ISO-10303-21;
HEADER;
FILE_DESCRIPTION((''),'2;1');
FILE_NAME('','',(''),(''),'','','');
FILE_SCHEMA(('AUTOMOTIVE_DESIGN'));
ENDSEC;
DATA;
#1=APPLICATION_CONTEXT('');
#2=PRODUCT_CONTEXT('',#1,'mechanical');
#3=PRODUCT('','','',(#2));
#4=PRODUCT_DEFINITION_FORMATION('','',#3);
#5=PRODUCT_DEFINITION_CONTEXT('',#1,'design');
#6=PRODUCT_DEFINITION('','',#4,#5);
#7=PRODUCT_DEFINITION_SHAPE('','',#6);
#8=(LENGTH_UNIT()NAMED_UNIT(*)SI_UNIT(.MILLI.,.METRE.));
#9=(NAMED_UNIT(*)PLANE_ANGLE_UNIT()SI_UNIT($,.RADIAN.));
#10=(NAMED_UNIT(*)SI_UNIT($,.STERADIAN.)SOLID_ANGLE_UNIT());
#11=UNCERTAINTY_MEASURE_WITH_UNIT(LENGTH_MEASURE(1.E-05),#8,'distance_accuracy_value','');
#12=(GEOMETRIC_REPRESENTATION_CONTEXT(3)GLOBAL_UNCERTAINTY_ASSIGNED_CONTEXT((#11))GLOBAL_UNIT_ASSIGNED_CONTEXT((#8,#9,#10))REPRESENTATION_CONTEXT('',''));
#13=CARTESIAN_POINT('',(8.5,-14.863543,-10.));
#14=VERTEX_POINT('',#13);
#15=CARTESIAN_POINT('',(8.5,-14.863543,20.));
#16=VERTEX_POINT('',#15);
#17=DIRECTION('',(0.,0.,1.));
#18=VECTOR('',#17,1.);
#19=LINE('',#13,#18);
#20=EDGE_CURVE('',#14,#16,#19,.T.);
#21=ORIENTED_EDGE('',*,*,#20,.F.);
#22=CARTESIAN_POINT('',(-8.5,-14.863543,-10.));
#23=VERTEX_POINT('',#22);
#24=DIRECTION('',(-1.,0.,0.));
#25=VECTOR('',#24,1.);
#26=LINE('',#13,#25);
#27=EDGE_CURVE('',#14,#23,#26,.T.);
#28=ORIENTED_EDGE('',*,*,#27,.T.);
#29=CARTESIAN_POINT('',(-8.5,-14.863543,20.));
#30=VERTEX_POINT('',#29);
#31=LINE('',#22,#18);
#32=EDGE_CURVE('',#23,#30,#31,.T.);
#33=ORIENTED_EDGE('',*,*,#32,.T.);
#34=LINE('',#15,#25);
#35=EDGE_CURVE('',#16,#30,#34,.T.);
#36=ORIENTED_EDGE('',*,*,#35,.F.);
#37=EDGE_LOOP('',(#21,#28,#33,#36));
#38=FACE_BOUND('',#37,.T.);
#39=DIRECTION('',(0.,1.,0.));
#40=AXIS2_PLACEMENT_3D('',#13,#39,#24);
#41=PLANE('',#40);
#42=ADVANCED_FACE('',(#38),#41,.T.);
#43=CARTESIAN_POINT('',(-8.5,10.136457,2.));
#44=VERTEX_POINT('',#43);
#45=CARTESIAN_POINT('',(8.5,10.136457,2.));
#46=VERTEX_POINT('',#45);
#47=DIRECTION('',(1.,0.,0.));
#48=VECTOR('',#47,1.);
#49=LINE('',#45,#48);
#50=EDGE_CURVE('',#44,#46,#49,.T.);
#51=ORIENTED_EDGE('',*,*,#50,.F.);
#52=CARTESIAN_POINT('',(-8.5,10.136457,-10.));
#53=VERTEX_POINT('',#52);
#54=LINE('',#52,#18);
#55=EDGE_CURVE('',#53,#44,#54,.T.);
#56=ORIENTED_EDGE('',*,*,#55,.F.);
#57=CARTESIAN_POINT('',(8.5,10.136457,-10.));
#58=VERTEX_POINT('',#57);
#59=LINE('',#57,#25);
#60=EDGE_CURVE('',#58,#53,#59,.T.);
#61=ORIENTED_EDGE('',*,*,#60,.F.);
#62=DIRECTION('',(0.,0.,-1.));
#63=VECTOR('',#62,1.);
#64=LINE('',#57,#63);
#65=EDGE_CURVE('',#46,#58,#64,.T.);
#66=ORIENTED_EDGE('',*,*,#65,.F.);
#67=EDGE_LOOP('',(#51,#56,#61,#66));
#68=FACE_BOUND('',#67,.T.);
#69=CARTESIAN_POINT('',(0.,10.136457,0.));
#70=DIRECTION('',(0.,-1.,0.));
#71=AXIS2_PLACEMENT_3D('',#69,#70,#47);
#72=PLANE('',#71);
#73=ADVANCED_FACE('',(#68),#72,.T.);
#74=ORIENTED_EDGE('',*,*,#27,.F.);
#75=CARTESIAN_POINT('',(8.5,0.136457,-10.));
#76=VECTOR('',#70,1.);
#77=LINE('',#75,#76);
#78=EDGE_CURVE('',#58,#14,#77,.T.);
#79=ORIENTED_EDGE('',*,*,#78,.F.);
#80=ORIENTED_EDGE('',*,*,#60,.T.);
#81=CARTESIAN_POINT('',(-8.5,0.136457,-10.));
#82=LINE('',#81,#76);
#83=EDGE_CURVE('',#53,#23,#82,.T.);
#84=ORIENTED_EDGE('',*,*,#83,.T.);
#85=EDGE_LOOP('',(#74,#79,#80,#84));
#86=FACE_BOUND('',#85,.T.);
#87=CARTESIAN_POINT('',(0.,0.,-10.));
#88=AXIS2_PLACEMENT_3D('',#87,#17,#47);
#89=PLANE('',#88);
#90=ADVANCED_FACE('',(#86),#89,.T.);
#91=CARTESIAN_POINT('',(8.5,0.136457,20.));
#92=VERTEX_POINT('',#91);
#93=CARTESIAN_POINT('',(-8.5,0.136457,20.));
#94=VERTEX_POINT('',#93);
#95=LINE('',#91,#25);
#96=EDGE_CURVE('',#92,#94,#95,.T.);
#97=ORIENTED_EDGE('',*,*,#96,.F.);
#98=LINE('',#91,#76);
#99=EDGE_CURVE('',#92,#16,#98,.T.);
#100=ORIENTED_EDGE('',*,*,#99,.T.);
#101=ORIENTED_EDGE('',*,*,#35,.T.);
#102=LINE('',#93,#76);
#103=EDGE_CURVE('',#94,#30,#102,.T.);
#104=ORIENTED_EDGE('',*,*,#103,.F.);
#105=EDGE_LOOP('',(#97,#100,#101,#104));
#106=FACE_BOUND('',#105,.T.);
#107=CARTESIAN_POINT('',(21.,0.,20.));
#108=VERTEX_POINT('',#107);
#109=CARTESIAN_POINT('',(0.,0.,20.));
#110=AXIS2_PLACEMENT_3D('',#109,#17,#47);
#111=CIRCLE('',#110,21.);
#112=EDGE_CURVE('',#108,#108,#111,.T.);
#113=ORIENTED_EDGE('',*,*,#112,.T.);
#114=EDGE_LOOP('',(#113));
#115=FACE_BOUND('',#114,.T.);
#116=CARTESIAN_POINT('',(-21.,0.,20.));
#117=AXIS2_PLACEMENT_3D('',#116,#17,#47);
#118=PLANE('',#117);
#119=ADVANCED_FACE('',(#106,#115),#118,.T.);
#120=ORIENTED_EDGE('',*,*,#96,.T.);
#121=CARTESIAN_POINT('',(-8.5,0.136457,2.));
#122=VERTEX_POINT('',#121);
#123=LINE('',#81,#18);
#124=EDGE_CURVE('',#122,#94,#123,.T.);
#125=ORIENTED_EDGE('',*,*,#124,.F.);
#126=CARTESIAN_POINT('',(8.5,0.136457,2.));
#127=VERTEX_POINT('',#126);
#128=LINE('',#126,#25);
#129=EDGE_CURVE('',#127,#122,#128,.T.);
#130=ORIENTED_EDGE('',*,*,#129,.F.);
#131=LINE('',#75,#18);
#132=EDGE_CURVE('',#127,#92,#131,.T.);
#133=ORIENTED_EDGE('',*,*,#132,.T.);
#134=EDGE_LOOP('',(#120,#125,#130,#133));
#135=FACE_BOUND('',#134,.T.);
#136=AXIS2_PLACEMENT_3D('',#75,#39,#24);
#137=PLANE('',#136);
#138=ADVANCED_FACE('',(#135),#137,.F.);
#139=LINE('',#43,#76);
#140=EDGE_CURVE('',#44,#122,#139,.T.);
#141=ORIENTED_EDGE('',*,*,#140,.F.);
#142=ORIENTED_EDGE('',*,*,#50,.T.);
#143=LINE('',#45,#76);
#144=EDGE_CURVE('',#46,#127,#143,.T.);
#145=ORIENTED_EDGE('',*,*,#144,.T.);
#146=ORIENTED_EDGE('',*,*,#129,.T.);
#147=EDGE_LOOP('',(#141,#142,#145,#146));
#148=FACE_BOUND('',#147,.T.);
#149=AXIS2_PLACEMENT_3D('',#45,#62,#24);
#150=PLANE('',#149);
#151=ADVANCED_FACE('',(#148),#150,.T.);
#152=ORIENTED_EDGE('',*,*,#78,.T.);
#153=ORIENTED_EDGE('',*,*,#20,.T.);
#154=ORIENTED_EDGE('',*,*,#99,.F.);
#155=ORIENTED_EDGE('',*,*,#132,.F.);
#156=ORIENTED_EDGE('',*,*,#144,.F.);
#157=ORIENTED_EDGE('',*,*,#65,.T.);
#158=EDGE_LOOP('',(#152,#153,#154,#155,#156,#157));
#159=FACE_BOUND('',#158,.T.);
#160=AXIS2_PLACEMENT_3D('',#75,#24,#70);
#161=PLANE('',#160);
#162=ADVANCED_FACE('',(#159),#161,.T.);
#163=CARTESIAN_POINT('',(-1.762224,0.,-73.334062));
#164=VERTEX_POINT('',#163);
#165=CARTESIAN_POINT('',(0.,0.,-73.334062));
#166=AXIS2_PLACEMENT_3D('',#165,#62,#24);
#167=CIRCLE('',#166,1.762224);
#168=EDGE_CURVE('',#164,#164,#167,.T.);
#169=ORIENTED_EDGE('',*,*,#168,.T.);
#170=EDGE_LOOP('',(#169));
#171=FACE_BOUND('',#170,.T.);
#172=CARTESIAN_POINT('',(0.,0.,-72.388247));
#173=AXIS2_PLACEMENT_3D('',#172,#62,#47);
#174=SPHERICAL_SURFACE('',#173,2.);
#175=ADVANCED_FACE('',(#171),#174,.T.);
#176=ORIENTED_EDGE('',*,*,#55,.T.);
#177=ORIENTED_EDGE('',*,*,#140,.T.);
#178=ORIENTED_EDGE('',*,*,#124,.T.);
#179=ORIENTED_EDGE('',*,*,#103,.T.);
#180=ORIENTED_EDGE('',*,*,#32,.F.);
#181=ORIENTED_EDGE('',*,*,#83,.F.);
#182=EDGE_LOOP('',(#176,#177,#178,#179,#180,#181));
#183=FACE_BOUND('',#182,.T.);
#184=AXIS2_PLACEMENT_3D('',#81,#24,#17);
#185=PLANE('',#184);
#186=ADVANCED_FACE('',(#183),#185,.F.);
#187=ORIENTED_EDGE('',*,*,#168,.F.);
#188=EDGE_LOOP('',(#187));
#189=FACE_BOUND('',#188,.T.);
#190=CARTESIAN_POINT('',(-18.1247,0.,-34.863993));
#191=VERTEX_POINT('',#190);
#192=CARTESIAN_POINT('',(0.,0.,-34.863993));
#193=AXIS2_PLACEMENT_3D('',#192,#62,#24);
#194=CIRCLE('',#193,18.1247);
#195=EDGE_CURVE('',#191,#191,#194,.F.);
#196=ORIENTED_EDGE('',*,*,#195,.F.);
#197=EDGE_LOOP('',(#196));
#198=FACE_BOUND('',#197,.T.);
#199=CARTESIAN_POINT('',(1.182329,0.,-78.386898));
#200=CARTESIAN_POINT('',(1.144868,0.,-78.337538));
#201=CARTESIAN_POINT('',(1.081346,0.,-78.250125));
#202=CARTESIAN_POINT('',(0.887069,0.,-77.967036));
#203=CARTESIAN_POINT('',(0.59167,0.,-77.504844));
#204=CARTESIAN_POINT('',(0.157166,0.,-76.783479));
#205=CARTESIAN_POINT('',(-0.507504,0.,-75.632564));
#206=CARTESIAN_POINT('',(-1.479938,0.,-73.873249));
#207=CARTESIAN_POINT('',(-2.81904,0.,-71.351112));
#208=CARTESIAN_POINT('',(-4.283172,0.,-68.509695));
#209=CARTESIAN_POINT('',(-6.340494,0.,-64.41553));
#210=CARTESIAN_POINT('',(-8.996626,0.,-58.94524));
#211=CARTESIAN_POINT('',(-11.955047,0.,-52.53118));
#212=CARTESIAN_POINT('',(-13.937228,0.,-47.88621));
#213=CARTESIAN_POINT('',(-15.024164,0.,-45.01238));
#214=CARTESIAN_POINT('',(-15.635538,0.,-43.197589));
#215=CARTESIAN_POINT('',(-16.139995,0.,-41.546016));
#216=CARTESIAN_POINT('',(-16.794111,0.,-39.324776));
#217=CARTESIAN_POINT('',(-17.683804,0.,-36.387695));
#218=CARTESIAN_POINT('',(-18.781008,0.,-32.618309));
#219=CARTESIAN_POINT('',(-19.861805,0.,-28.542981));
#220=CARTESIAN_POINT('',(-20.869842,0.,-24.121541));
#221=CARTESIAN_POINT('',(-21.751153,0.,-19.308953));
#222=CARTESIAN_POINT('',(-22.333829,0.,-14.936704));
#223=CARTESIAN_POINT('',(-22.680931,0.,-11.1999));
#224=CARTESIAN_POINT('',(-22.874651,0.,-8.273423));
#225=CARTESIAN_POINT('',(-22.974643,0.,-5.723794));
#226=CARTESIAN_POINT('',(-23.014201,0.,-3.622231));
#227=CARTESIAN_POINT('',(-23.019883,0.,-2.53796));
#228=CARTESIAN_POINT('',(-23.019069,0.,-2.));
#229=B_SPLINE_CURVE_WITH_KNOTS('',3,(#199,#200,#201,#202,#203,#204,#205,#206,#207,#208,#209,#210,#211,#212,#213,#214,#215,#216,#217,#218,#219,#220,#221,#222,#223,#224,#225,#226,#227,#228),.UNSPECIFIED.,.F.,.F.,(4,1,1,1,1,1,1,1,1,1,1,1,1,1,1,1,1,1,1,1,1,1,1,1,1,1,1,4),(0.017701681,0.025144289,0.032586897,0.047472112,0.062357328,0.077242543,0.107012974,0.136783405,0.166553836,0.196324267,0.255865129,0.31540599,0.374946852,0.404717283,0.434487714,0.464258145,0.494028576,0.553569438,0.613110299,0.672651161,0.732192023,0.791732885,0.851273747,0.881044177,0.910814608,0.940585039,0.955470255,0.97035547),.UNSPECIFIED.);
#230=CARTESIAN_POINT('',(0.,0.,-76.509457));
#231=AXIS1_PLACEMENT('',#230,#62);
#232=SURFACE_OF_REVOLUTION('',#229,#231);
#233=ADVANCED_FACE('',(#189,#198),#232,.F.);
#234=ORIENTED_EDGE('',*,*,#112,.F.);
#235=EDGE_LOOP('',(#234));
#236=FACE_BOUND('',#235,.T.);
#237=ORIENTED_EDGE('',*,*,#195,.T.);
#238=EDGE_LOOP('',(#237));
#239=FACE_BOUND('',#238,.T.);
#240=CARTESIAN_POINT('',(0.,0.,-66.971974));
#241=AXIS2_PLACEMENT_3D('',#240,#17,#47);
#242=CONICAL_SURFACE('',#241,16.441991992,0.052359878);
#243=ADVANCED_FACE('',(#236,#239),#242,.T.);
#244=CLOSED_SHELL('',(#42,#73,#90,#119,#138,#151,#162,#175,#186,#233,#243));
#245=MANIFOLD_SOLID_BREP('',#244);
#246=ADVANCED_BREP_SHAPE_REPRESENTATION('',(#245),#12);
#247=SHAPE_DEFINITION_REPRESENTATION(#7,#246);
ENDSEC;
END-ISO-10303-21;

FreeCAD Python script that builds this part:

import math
import FreeCAD as App
import Part
import Sketcher

V = App.Vector
Q = App.Units.Quantity

doc = App.newDocument("Part")
body = doc.addObject("PartDesign::Body", "Body")

# Sketch on XZ plane
sketch1 = body.newObject("Sketcher::SketchObject", "Sketch")
sketch1.AttachmentSupport = (doc.getObject("XZ_Plane"), [""])
sketch1.MapMode = "FlatFace"
sketch1.addGeometry([
    Part.LineSegment(V(-21, 20, 0), V(0, 20, 0)),
    Part.LineSegment(V(0, 20, 0), V(0, -76.509457, 0)),
    Part.BSplineCurve([V(-21, -23.303527, 0), V(-20.950152, -23.556197, 0), V(-20.588242, -25.356689, 0), V(-19.861805, -28.542981, 0), V(-18.781008, -32.618309, 0), V(-17.683804, -36.387695, 0), V(-16.794111, -39.324776, 0), V(-16.139995, -41.546016, 0), V(-15.635538, -43.197589, 0), V(-15.024164, -45.01238, 0), V(-13.937228, -47.88621, 0), V(-11.955047, -52.53118, 0), V(-8.996626, -58.94524, 0), V(-6.340494, -64.41553, 0), V(-4.283172, -68.509695, 0), V(-2.81904, -71.351112, 0), V(-1.479938, -73.873249, 0), V(-0.567336, -75.524317, 0), V(-0.112134, -76.316693, 0), V(0, -76.509457, 0)], [4, 1, 1, 1, 1, 1, 1, 1, 1, 1, 1, 1, 1, 1, 1, 1, 1, 4], [0.246223276, 0.255865129, 0.31540599, 0.374946852, 0.434487714, 0.494028576, 0.523799007, 0.553569438, 0.583339868, 0.613110299, 0.672651161, 0.732192023, 0.791732885, 0.821503316, 0.851273747, 0.881044177, 0.910814608, 0.921120543], False, 3, [1, 1, 1, 1, 1, 1, 1, 1, 1, 1, 1, 1, 1, 1, 1, 1, 1, 1, 1, 1], False),
    Part.LineSegment(V(-21, -23.303527, 0), V(-21, 20, 0)),
], False)
sketch1.addConstraint([
    Sketcher.Constraint("Block", 2),
    Sketcher.Constraint("Coincident", 0, 2, 1, 1),
    Sketcher.Constraint("Coincident", 1, 2, 2, 2),
    Sketcher.Constraint("Coincident", 2, 1, 3, 1),
    Sketcher.Constraint("Coincident", 3, 2, 0, 1),
    Sketcher.Constraint("Horizontal", 0),
    Sketcher.Constraint("Vertical", 1),
    Sketcher.Constraint("Vertical", 3),
    Sketcher.Constraint("DistanceY", -1, 1, 0, 2, Q("20 mm")),
])
revolution = body.newObject("PartDesign::Revolution", "Revolution")
revolution.Profile = sketch1
revolution.ReferenceAxis = (sketch1, ["V_Axis"])
revolution.Angle = 360

# Sketch on XZ plane
sketch2 = body.newObject("Sketcher::SketchObject", "Sketch001")
sketch2.AttachmentSupport = (doc.getObject("XZ_Plane"), [""])
sketch2.MapMode = "FlatFace"
sketch2.addGeometry([
    Part.LineSegment(V(21, 20, 0), V(21, -67, 0)),
    Part.LineSegment(V(21, -67, 0), V(16.4, -67, 0)),
    Part.LineSegment(V(16.4, -67, 0), V(21, 20, 0)),
], False)
sketch2.addConstraint([
    Sketcher.Constraint("Coincident", 0, 2, 1, 1),
    Sketcher.Constraint("Coincident", 1, 2, 2, 1),
    Sketcher.Constraint("Coincident", 2, 2, 0, 1),
    Sketcher.Constraint("Vertical", 0),
    Sketcher.Constraint("Horizontal", 1),
    Sketcher.Constraint("Angle", 2, Q("87 deg")),
    Sketcher.Constraint("DistanceX", -1, 1, 0, 2, Q("21 mm")),
    Sketcher.Constraint("DistanceY", -1, 1, 2, 2, Q("20 mm")),
    Sketcher.Constraint("DistanceX", 1, 2, 1, 1, Q("4.558008 mm")),
])
groove = body.newObject("PartDesign::Groove", "Groove")
groove.Profile = sketch2
groove.ReferenceAxis = (sketch2, ["V_Axis"])
groove.Angle = 360

# Sketch on XZ plane
sketch3 = body.newObject("Sketcher::SketchObject", "Sketch002")
sketch3.AttachmentSupport = (doc.getObject("XZ_Plane"), [""])
sketch3.MapMode = "FlatFace"
sketch3.addGeometry([
    Part.LineSegment(V(0, -76.5, 0), V(0, -74.4, 0)),  # 0
    Part.ArcOfCircle(Part.Circle(V(0, -72.4, 0), V(0, 0, 1), 2), math.radians(-90), math.radians(-28)),  # 1
    Part.LineSegment(V(1.8, -73.3, 0), V(4, -73.3, 0)),  # 2
    Part.LineSegment(V(4, -73.3, 0), V(4, -76.5, 0)),  # 3
    Part.LineSegment(V(4, -76.5, 0), V(0, -76.5, 0)),  # 4
], False)
sketch3.addConstraint([
    Sketcher.Constraint("Coincident", 0, 2, 1, 1),
    Sketcher.Constraint("Coincident", 1, 2, 2, 1),
    Sketcher.Constraint("Coincident", 2, 2, 3, 1),
    Sketcher.Constraint("Coincident", 3, 2, 4, 1),
    Sketcher.Constraint("Coincident", 4, 2, 0, 1),
    Sketcher.Constraint("Vertical", 0),
    Sketcher.Constraint("Horizontal", 2),
    Sketcher.Constraint("Vertical", 3),
    Sketcher.Constraint("Horizontal", 4),
    Sketcher.Constraint("PointOnObject", 1, 3, -2),
    Sketcher.Constraint("PointOnObject", 0, 2, -2),
    Sketcher.Constraint("Radius", 1, Q("2 mm")),
    Sketcher.Constraint("DistanceX", 2, 1, 2, 2, Q("2.263701 mm")),
    Sketcher.Constraint("DistanceY", 0, 1, 0, 2, Q("2.121228 mm")),
    Sketcher.Constraint("DistanceX", 4, 2, 4, 1, Q("4.025925 mm")),
    Sketcher.Constraint("DistanceY", 1, 3, -1, 1, Q("72.388247 mm")),
])
groove2 = body.newObject("PartDesign::Groove", "Groove001")
groove2.Profile = sketch3
groove2.ReferenceAxis = (sketch3, ["V_Axis"])
groove2.Angle = 360

# Sketch on XY plane
sketch4 = body.newObject("Sketcher::SketchObject", "Sketch003")
sketch4.AttachmentSupport = (doc.getObject("XY_Plane"), [""])
sketch4.MapMode = "FlatFace"
sketch4.AttachmentOffset = App.Placement(V(0, 0, 20), App.Rotation())
sketch4.addGeometry([
    Part.LineSegment(V(-8, 0, 0), V(-8, -15, 0)),
    Part.LineSegment(V(-8, -15, 0), V(8, -15, 0)),
    Part.LineSegment(V(8, -15, 0), V(8, 0, 0)),
    Part.LineSegment(V(8, 0, 0), V(-8, 0, 0)),
], False)
sketch4.addConstraint([
    Sketcher.Constraint("Coincident", 0, 2, 1, 1),
    Sketcher.Constraint("Coincident", 1, 2, 2, 1),
    Sketcher.Constraint("Coincident", 2, 2, 3, 1),
    Sketcher.Constraint("Coincident", 3, 2, 0, 1),
    Sketcher.Constraint("Vertical", 0),
    Sketcher.Constraint("Horizontal", 1),
    Sketcher.Constraint("Vertical", 2),
    Sketcher.Constraint("Horizontal", 3),
    Sketcher.Constraint("DistanceX", 1, 1, 1, 2, Q("17 mm")),
    Sketcher.Constraint("DistanceY", 0, 2, 0, 1, Q("15 mm")),
    Sketcher.Constraint("DistanceX", 0, 2, -1, 1, Q("8.5 mm")),
    Sketcher.Constraint("DistanceY", 0, 2, -1, 1, Q("14.863543 mm")),
])
pocket1 = body.newObject("PartDesign::Pocket", "Pocket")
pocket1.Profile = sketch4
pocket1.Length = 30

# Sketch on XZ plane
sketch5 = body.newObject("Sketcher::SketchObject", "Sketch004")
sketch5.AttachmentSupport = (doc.getObject("XZ_Plane"), [""])
sketch5.MapMode = "FlatFace"
sketch5.AttachmentOffset = App.Placement(V(0, 0, 14.863543), App.Rotation())
sketch5.addGeometry([
    Part.LineSegment(V(-8, -10, 0), V(-8, 2, 0)),
    Part.LineSegment(V(-8, 2, 0), V(8, 2, 0)),
    Part.LineSegment(V(8, 2, 0), V(8, -10, 0)),
    Part.LineSegment(V(8, -10, 0), V(-8, -10, 0)),
], False)
sketch5.addConstraint([
    Sketcher.Constraint("Coincident", 0, 2, 1, 1),
    Sketcher.Constraint("Coincident", 1, 2, 2, 1),
    Sketcher.Constraint("Coincident", 2, 2, 3, 1),
    Sketcher.Constraint("Coincident", 3, 2, 0, 1),
    Sketcher.Constraint("Vertical", 0),
    Sketcher.Constraint("Horizontal", 1),
    Sketcher.Constraint("Vertical", 2),
    Sketcher.Constraint("Horizontal", 3),
    Sketcher.Constraint("DistanceX", 1, 1, 1, 2, Q("17 mm")),
    Sketcher.Constraint("DistanceY", 0, 1, 0, 2, Q("12 mm")),
    Sketcher.Constraint("DistanceY", -1, 1, 0, 2, Q("2 mm")),
    Sketcher.Constraint("DistanceX", 0, 2, -1, 1, Q("8.5 mm")),
])
pocket2 = body.newObject("PartDesign::Pocket", "Pocket001")
pocket2.Profile = sketch5
pocket2.Length = 25

doc.recompute()
